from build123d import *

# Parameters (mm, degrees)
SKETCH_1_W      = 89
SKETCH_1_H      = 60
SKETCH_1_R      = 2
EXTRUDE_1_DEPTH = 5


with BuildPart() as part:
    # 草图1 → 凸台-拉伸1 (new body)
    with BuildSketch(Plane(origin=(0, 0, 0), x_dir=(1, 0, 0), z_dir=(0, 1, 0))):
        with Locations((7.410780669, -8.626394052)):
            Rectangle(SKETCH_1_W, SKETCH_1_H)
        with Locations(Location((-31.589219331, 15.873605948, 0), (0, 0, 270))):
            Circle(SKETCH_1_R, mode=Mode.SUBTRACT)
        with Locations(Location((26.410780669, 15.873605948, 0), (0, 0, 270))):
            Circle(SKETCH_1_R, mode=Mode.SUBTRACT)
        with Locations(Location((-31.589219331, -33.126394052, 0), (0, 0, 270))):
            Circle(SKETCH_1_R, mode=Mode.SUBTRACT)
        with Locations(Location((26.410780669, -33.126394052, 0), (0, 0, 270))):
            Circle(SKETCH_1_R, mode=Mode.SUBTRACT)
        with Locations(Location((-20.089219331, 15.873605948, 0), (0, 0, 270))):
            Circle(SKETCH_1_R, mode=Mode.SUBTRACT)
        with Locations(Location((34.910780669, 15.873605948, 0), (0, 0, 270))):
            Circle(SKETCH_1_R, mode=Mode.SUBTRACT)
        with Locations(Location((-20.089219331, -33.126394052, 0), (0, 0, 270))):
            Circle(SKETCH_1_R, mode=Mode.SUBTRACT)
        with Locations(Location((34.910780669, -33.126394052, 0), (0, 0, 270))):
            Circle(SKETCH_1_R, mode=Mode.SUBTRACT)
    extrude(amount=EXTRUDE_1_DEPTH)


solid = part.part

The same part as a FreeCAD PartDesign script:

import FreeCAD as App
import Part
import Sketcher
Q = App.Units.Quantity

doc = App.newDocument("Part")
body = doc.addObject("PartDesign::Body", "Body")

# Sketch on XZ plane
sketch1 = body.newObject("Sketcher::SketchObject", "Sketch")
sketch1.AttachmentSupport = (doc.getObject("XZ_Plane"), [""])
sketch1.MapMode = "FlatFace"
sketch1.addGeometry(Part.LineSegment(App.Vector(-37.1, -21.4, 0), App.Vector(-37.1, 38.6, 0)), False)
sketch1.addGeometry(Part.LineSegment(App.Vector(-37.1, 38.6, 0), App.Vector(51.9, 38.6, 0)), False)
sketch1.addGeometry(Part.LineSegment(App.Vector(51.9, 38.6, 0), App.Vector(51.9, -21.4, 0)), False)
sketch1.addGeometry(Part.LineSegment(App.Vector(51.9, -21.4, 0), App.Vector(-37.1, -21.4, 0)), False)
sketch1.addGeometry(Part.Circle(App.Vector(-31.6, 33.1, 0), App.Vector(0, 0, 1), 2), False)
sketch1.addGeometry(Part.Circle(App.Vector(-20.1, 33.1, 0), App.Vector(0, 0, 1), 2), False)
sketch1.addGeometry(Part.Circle(App.Vector(26.4, 33.1, 0), App.Vector(0, 0, 1), 2), False)
sketch1.addGeometry(Part.Circle(App.Vector(34.9, 33.1, 0), App.Vector(0, 0, 1), 2), False)
sketch1.addGeometry(Part.Circle(App.Vector(-31.6, -15.9, 0), App.Vector(0, 0, 1), 2), False)
sketch1.addGeometry(Part.Circle(App.Vector(-20.1, -15.9, 0), App.Vector(0, 0, 1), 2), False)
sketch1.addGeometry(Part.Circle(App.Vector(26.4, -15.9, 0), App.Vector(0, 0, 1), 2), False)
sketch1.addGeometry(Part.Circle(App.Vector(34.9, -15.9, 0), App.Vector(0, 0, 1), 2), False)
sketch1.addConstraint(Sketcher.Constraint("Coincident", 0, 2, 1, 1))
sketch1.addConstraint(Sketcher.Constraint("Coincident", 1, 2, 2, 1))
sketch1.addConstraint(Sketcher.Constraint("Coincident", 2, 2, 3, 1))
sketch1.addConstraint(Sketcher.Constraint("Coincident", 3, 2, 0, 1))
sketch1.addConstraint(Sketcher.Constraint("Vertical", 0))
sketch1.addConstraint(Sketcher.Constraint("Horizontal", 1))
sketch1.addConstraint(Sketcher.Constraint("Vertical", 2))
sketch1.addConstraint(Sketcher.Constraint("Horizontal", 3))
sketch1.addConstraint(Sketcher.Constraint("Equal", 4, 5))
sketch1.addConstraint(Sketcher.Constraint("Equal", 5, 6))
sketch1.addConstraint(Sketcher.Constraint("Equal", 6, 7))
sketch1.addConstraint(Sketcher.Constraint("Equal", 7, 8))
sketch1.addConstraint(Sketcher.Constraint("Equal", 8, 9))
sketch1.addConstraint(Sketcher.Constraint("Equal", 9, 10))
sketch1.addConstraint(Sketcher.Constraint("Equal", 10, 11))
sketch1.addConstraint(Sketcher.Constraint("Horizontal", 4, 3, 5, 3))
sketch1.addConstraint(Sketcher.Constraint("Horizontal", 5, 3, 6, 3))
sketch1.addConstraint(Sketcher.Constraint("Horizontal", 6, 3, 7, 3))
sketch1.addConstraint(Sketcher.Constraint("Horizontal", 8, 3, 9, 3))
sketch1.addConstraint(Sketcher.Constraint("Horizontal", 9, 3, 10, 3))
sketch1.addConstraint(Sketcher.Constraint("Horizontal", 10, 3, 11, 3))
sketch1.addConstraint(Sketcher.Constraint("Vertical", 4, 3, 8, 3))
sketch1.addConstraint(Sketcher.Constraint("Vertical", 5, 3, 9, 3))
sketch1.addConstraint(Sketcher.Constraint("Vertical", 6, 3, 10, 3))
sketch1.addConstraint(Sketcher.Constraint("Vertical", 7, 3, 11, 3))
sketch1.addConstraint(Sketcher.Constraint("Diameter", 4, Q("4 mm")))
sketch1.addConstraint(Sketcher.Constraint("DistanceX", 1, 1, 1, 2, Q("89 mm")))
sketch1.addConstraint(Sketcher.Constraint("DistanceY", 0, 1, 0, 2, Q("60 mm")))
sketch1.addConstraint(Sketcher.Constraint("DistanceX", 4, 3, 6, 3, Q("58 mm")))
sketch1.addConstraint(Sketcher.Constraint("DistanceX", 5, 3, 7, 3, Q("55 mm")))
sketch1.addConstraint(Sketcher.Constraint("DistanceY", 8, 3, 4, 3, Q("49 mm")))
sketch1.addConstraint(Sketcher.Constraint("DistanceX", 0, 2, 5, 3, Q("17 mm")))
sketch1.addConstraint(Sketcher.Constraint("DistanceX", 4, 3, 5, 3, Q("11.5 mm")))
sketch1.addConstraint(Sketcher.Constraint("DistanceY", 4, 3, 0, 2, Q("5.5 mm")))
sketch1.addConstraint(Sketcher.Constraint("DistanceX", 4, 3, -1, 1, Q("31.589219 mm")))
sketch1.addConstraint(Sketcher.Constraint("DistanceY", -1, 1, 4, 3, Q("33.126394 mm")))
pad1 = body.newObject("PartDesign::Pad", "Pad")
pad1.Profile = sketch1
pad1.Length = 5
pad1.Reversed = True

doc.recompute()
